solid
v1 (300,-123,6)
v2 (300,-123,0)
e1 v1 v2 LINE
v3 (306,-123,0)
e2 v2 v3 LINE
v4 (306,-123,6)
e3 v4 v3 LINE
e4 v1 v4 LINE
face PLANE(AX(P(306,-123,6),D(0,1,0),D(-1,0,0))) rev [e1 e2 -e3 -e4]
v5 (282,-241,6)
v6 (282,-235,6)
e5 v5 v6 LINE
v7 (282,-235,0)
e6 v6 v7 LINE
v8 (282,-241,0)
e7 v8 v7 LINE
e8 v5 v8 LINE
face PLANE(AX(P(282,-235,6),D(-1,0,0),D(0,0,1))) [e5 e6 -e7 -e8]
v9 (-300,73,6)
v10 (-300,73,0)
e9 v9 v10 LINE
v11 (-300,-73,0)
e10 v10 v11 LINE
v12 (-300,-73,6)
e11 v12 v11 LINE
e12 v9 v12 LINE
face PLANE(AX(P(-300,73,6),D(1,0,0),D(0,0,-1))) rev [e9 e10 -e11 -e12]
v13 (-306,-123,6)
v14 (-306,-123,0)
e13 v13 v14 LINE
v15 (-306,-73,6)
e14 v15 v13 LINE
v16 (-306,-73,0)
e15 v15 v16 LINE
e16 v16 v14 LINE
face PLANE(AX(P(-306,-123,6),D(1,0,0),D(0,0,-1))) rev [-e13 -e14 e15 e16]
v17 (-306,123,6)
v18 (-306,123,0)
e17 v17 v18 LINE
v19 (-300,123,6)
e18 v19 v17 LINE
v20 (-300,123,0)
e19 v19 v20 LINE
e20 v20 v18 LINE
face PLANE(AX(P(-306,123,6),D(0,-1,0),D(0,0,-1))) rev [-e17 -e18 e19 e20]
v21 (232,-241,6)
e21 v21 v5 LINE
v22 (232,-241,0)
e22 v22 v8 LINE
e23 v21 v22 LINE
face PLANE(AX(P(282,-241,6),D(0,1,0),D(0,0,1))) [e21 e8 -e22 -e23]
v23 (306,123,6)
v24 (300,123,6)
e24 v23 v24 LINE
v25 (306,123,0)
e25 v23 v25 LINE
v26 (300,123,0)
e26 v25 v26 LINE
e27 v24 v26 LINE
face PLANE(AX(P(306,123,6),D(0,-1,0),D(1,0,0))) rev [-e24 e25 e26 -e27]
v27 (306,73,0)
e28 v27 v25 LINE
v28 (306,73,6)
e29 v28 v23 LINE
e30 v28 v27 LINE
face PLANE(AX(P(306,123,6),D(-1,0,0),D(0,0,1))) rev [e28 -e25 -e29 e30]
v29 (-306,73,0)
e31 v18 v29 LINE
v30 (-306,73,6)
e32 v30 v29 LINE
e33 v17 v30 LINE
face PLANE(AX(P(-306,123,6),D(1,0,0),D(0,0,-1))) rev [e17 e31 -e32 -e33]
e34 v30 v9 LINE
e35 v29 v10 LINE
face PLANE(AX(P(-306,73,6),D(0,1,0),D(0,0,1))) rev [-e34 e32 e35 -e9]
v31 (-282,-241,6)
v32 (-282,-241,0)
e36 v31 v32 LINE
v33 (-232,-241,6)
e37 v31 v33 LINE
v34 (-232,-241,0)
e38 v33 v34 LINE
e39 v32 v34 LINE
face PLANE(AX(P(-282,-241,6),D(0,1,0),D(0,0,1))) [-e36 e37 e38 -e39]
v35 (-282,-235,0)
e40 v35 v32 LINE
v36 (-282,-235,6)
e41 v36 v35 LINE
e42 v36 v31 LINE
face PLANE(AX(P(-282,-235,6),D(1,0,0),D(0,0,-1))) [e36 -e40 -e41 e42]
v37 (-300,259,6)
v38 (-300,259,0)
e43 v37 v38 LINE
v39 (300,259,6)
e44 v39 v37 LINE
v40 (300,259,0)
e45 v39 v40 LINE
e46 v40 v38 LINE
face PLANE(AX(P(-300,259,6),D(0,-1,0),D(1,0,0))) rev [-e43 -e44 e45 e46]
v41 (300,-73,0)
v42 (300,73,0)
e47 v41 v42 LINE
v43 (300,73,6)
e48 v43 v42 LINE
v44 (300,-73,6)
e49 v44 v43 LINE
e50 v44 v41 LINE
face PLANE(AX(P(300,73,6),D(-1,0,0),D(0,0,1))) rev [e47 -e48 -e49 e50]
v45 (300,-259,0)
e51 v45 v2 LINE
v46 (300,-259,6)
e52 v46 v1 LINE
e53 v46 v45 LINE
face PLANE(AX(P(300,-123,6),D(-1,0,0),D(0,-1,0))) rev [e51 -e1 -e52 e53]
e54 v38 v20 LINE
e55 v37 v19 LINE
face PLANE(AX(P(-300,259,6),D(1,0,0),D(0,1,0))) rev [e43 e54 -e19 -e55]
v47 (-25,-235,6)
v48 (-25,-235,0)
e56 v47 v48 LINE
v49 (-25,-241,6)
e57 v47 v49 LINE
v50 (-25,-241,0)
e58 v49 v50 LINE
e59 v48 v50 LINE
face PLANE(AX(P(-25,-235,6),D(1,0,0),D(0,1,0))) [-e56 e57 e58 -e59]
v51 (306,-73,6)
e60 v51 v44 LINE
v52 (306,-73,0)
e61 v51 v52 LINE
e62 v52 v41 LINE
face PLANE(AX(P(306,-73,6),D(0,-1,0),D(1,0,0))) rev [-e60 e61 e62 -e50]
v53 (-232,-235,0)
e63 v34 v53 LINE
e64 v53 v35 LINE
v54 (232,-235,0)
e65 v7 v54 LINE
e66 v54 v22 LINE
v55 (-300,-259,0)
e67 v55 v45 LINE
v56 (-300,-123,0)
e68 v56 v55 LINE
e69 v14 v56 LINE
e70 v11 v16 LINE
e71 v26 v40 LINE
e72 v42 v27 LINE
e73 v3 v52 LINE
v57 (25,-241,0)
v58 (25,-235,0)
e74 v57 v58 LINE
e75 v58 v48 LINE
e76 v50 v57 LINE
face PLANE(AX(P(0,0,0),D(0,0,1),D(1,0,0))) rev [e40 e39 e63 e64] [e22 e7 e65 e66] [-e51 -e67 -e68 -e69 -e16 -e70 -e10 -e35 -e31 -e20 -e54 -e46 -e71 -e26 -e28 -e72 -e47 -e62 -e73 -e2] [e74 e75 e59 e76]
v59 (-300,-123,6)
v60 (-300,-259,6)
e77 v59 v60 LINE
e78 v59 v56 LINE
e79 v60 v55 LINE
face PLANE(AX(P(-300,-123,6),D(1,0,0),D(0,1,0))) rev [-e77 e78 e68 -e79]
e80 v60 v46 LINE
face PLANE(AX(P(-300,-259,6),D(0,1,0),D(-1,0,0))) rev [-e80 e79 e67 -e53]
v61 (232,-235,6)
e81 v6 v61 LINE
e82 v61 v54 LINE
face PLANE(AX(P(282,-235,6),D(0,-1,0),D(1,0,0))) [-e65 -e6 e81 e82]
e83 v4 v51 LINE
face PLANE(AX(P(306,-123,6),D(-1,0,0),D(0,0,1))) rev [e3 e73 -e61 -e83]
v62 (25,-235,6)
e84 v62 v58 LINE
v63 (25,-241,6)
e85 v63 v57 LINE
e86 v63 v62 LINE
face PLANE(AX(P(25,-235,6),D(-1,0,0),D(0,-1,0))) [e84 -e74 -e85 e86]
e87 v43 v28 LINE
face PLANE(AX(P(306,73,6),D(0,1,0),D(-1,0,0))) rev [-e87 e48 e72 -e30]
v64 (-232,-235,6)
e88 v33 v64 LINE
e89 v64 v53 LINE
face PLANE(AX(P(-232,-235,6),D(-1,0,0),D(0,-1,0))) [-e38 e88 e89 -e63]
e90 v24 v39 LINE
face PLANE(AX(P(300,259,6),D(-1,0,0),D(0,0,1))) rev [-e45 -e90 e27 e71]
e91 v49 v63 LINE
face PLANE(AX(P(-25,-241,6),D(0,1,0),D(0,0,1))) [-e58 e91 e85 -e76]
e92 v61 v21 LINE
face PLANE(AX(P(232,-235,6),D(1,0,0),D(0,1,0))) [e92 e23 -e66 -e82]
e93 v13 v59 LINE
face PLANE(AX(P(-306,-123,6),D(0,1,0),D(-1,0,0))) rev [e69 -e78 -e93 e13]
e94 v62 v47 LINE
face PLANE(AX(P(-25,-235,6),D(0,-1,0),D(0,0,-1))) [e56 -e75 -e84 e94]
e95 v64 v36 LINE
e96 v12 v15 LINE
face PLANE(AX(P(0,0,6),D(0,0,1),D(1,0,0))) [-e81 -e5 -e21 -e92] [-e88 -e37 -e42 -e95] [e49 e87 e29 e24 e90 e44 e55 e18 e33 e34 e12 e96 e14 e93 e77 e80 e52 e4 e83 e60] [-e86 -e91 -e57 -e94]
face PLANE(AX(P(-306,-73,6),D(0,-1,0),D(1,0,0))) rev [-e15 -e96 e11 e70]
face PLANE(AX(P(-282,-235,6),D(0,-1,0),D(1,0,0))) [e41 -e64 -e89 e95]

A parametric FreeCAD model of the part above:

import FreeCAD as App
import Part
import Sketcher

V = App.Vector


def add_polygon(sketch, points):
    """Adds a closed chain of lines whose ends are joined by coincident constraints."""
    first, n = sketch.GeometryCount, len(points)
    for a, b in zip(points, points[1:] + points[:1]):
        sketch.addGeometry(Part.LineSegment(App.Vector(*a, 0), App.Vector(*b, 0)), False)
    for i in range(n):
        sketch.addConstraint(Sketcher.Constraint("Coincident", first + i, 2, first + (i + 1) % n, 1))

doc = App.newDocument("Part")
body = doc.addObject("PartDesign::Body", "Body")

sketch1 = doc.addObject("Sketcher::SketchObject", "Sketch")
body.addObject(sketch1)
sketch1.AttachmentSupport = (doc.XY_Plane, [""])
sketch1.MapMode = "FlatFace"
add_polygon(sketch1, [(300, 259), (-300, 259), (-300, 123), (-306, 123), (-306, 73), (-300, 73), (-300, -73), (-306, -73), (-306, -123), (-300, -123), (-300, -259), (300, -259), (300, -123), (306, -123), (306, -73), (300, -73), (300, 73), (306, 73), (306, 123), (300, 123)])
add_polygon(sketch1, [(232, -241), (232, -235), (282, -235), (282, -241)])
add_polygon(sketch1, [(-25, -241), (-25, -235), (25, -235), (25, -241)])
add_polygon(sketch1, [(-282, -241), (-282, -235), (-232, -235), (-232, -241)])
sketch1.addConstraint(Sketcher.Constraint("Horizontal", 0))
sketch1.addConstraint(Sketcher.Constraint("Vertical", 1))
sketch1.addConstraint(Sketcher.Constraint("Horizontal", 2))
sketch1.addConstraint(Sketcher.Constraint("Vertical", 3))
sketch1.addConstraint(Sketcher.Constraint("Horizontal", 4))
sketch1.addConstraint(Sketcher.Constraint("Vertical", 5))
sketch1.addConstraint(Sketcher.Constraint("Horizontal", 6))
sketch1.addConstraint(Sketcher.Constraint("Vertical", 7))
sketch1.addConstraint(Sketcher.Constraint("Horizontal", 8))
sketch1.addConstraint(Sketcher.Constraint("Vertical", 9))
sketch1.addConstraint(Sketcher.Constraint("Horizontal", 10))
sketch1.addConstraint(Sketcher.Constraint("Vertical", 11))
sketch1.addConstraint(Sketcher.Constraint("Horizontal", 12))
sketch1.addConstraint(Sketcher.Constraint("Vertical", 13))
sketch1.addConstraint(Sketcher.Constraint("Horizontal", 14))
sketch1.addConstraint(Sketcher.Constraint("Vertical", 15))
sketch1.addConstraint(Sketcher.Constraint("Horizontal", 16))
sketch1.addConstraint(Sketcher.Constraint("Vertical", 17))
sketch1.addConstraint(Sketcher.Constraint("Horizontal", 18))
sketch1.addConstraint(Sketcher.Constraint("Vertical", 19))
sketch1.addConstraint(Sketcher.Constraint("Vertical", 20))
sketch1.addConstraint(Sketcher.Constraint("Horizontal", 21))
sketch1.addConstraint(Sketcher.Constraint("Vertical", 22))
sketch1.addConstraint(Sketcher.Constraint("Horizontal", 23))
sketch1.addConstraint(Sketcher.Constraint("Vertical", 24))
sketch1.addConstraint(Sketcher.Constraint("Horizontal", 25))
sketch1.addConstraint(Sketcher.Constraint("Vertical", 26))
sketch1.addConstraint(Sketcher.Constraint("Horizontal", 27))
sketch1.addConstraint(Sketcher.Constraint("Vertical", 28))
sketch1.addConstraint(Sketcher.Constraint("Horizontal", 29))
sketch1.addConstraint(Sketcher.Constraint("Vertical", 30))
sketch1.addConstraint(Sketcher.Constraint("Horizontal", 31))
sketch1.addConstraint(Sketcher.Constraint("Symmetric", 0, 2, 10, 2, -1, 1))
sketch1.addConstraint(Sketcher.Constraint("Symmetric", 2, 2, 12, 2, -1, 1))
sketch1.addConstraint(Sketcher.Constraint("Symmetric", 4, 2, 14, 2, -1, 1))
sketch1.addConstraint(Sketcher.Constraint("Symmetric", 6, 2, 16, 2, -1, 1))
sketch1.addConstraint(Sketcher.Constraint("Symmetric", 8, 2, 18, 2, -1, 1))
sketch1.addConstraint(Sketcher.Constraint("Symmetric", 8, 2, 11, 2, -2))
sketch1.addConstraint(Sketcher.Constraint("Symmetric", 6, 2, 13, 2, -2))
sketch1.addConstraint(Sketcher.Constraint("Symmetric", 21, 2, 28, 2, -2))
sketch1.addConstraint(Sketcher.Constraint("Symmetric", 23, 2, 30, 2, -2))
sketch1.addConstraint(Sketcher.Constraint("Horizontal", 21, 2, 24, 2))
sketch1.addConstraint(Sketcher.Constraint("Horizontal", 23, 2, 26, 2))
sketch1.addConstraint(Sketcher.Constraint("Vertical", 1, 2, 4, 2))
sketch1.addConstraint(Sketcher.Constraint("Equal", 23, 25))
sketch1.addConstraint(Sketcher.Constraint("Equal", 31, 3))
sketch1.addConstraint(Sketcher.Constraint("Equal", 18, 20))
sketch1.addConstraint(Sketcher.Constraint("DistanceX", 0, 2, 0, 1, 600.0))
sketch1.addConstraint(Sketcher.Constraint("DistanceX", 2, 2, 2, 1, 6.0))
sketch1.addConstraint(Sketcher.Constraint("DistanceX", 21, 1, 21, 2, 50.0))
sketch1.addConstraint(Sketcher.Constraint("DistanceY", 1, 2, 1, 1, 136.0))
sketch1.addConstraint(Sketcher.Constraint("DistanceY", 5, 2, 5, 1, 146.0))
sketch1.addConstraint(Sketcher.Constraint("DistanceX", -1, 1, 20, 2, 232.0))
sketch1.addConstraint(Sketcher.Constraint("DistanceY", 20, 2, -1, 1, 235.0))
sketch1.addConstraint(Sketcher.Constraint("DistanceX", 24, 2, -1, 1, 25.0))
pad1 = doc.addObject("PartDesign::Pad", "Pad")
body.addObject(pad1)
pad1.Profile = sketch1
pad1.Length = 6

doc.recompute()
